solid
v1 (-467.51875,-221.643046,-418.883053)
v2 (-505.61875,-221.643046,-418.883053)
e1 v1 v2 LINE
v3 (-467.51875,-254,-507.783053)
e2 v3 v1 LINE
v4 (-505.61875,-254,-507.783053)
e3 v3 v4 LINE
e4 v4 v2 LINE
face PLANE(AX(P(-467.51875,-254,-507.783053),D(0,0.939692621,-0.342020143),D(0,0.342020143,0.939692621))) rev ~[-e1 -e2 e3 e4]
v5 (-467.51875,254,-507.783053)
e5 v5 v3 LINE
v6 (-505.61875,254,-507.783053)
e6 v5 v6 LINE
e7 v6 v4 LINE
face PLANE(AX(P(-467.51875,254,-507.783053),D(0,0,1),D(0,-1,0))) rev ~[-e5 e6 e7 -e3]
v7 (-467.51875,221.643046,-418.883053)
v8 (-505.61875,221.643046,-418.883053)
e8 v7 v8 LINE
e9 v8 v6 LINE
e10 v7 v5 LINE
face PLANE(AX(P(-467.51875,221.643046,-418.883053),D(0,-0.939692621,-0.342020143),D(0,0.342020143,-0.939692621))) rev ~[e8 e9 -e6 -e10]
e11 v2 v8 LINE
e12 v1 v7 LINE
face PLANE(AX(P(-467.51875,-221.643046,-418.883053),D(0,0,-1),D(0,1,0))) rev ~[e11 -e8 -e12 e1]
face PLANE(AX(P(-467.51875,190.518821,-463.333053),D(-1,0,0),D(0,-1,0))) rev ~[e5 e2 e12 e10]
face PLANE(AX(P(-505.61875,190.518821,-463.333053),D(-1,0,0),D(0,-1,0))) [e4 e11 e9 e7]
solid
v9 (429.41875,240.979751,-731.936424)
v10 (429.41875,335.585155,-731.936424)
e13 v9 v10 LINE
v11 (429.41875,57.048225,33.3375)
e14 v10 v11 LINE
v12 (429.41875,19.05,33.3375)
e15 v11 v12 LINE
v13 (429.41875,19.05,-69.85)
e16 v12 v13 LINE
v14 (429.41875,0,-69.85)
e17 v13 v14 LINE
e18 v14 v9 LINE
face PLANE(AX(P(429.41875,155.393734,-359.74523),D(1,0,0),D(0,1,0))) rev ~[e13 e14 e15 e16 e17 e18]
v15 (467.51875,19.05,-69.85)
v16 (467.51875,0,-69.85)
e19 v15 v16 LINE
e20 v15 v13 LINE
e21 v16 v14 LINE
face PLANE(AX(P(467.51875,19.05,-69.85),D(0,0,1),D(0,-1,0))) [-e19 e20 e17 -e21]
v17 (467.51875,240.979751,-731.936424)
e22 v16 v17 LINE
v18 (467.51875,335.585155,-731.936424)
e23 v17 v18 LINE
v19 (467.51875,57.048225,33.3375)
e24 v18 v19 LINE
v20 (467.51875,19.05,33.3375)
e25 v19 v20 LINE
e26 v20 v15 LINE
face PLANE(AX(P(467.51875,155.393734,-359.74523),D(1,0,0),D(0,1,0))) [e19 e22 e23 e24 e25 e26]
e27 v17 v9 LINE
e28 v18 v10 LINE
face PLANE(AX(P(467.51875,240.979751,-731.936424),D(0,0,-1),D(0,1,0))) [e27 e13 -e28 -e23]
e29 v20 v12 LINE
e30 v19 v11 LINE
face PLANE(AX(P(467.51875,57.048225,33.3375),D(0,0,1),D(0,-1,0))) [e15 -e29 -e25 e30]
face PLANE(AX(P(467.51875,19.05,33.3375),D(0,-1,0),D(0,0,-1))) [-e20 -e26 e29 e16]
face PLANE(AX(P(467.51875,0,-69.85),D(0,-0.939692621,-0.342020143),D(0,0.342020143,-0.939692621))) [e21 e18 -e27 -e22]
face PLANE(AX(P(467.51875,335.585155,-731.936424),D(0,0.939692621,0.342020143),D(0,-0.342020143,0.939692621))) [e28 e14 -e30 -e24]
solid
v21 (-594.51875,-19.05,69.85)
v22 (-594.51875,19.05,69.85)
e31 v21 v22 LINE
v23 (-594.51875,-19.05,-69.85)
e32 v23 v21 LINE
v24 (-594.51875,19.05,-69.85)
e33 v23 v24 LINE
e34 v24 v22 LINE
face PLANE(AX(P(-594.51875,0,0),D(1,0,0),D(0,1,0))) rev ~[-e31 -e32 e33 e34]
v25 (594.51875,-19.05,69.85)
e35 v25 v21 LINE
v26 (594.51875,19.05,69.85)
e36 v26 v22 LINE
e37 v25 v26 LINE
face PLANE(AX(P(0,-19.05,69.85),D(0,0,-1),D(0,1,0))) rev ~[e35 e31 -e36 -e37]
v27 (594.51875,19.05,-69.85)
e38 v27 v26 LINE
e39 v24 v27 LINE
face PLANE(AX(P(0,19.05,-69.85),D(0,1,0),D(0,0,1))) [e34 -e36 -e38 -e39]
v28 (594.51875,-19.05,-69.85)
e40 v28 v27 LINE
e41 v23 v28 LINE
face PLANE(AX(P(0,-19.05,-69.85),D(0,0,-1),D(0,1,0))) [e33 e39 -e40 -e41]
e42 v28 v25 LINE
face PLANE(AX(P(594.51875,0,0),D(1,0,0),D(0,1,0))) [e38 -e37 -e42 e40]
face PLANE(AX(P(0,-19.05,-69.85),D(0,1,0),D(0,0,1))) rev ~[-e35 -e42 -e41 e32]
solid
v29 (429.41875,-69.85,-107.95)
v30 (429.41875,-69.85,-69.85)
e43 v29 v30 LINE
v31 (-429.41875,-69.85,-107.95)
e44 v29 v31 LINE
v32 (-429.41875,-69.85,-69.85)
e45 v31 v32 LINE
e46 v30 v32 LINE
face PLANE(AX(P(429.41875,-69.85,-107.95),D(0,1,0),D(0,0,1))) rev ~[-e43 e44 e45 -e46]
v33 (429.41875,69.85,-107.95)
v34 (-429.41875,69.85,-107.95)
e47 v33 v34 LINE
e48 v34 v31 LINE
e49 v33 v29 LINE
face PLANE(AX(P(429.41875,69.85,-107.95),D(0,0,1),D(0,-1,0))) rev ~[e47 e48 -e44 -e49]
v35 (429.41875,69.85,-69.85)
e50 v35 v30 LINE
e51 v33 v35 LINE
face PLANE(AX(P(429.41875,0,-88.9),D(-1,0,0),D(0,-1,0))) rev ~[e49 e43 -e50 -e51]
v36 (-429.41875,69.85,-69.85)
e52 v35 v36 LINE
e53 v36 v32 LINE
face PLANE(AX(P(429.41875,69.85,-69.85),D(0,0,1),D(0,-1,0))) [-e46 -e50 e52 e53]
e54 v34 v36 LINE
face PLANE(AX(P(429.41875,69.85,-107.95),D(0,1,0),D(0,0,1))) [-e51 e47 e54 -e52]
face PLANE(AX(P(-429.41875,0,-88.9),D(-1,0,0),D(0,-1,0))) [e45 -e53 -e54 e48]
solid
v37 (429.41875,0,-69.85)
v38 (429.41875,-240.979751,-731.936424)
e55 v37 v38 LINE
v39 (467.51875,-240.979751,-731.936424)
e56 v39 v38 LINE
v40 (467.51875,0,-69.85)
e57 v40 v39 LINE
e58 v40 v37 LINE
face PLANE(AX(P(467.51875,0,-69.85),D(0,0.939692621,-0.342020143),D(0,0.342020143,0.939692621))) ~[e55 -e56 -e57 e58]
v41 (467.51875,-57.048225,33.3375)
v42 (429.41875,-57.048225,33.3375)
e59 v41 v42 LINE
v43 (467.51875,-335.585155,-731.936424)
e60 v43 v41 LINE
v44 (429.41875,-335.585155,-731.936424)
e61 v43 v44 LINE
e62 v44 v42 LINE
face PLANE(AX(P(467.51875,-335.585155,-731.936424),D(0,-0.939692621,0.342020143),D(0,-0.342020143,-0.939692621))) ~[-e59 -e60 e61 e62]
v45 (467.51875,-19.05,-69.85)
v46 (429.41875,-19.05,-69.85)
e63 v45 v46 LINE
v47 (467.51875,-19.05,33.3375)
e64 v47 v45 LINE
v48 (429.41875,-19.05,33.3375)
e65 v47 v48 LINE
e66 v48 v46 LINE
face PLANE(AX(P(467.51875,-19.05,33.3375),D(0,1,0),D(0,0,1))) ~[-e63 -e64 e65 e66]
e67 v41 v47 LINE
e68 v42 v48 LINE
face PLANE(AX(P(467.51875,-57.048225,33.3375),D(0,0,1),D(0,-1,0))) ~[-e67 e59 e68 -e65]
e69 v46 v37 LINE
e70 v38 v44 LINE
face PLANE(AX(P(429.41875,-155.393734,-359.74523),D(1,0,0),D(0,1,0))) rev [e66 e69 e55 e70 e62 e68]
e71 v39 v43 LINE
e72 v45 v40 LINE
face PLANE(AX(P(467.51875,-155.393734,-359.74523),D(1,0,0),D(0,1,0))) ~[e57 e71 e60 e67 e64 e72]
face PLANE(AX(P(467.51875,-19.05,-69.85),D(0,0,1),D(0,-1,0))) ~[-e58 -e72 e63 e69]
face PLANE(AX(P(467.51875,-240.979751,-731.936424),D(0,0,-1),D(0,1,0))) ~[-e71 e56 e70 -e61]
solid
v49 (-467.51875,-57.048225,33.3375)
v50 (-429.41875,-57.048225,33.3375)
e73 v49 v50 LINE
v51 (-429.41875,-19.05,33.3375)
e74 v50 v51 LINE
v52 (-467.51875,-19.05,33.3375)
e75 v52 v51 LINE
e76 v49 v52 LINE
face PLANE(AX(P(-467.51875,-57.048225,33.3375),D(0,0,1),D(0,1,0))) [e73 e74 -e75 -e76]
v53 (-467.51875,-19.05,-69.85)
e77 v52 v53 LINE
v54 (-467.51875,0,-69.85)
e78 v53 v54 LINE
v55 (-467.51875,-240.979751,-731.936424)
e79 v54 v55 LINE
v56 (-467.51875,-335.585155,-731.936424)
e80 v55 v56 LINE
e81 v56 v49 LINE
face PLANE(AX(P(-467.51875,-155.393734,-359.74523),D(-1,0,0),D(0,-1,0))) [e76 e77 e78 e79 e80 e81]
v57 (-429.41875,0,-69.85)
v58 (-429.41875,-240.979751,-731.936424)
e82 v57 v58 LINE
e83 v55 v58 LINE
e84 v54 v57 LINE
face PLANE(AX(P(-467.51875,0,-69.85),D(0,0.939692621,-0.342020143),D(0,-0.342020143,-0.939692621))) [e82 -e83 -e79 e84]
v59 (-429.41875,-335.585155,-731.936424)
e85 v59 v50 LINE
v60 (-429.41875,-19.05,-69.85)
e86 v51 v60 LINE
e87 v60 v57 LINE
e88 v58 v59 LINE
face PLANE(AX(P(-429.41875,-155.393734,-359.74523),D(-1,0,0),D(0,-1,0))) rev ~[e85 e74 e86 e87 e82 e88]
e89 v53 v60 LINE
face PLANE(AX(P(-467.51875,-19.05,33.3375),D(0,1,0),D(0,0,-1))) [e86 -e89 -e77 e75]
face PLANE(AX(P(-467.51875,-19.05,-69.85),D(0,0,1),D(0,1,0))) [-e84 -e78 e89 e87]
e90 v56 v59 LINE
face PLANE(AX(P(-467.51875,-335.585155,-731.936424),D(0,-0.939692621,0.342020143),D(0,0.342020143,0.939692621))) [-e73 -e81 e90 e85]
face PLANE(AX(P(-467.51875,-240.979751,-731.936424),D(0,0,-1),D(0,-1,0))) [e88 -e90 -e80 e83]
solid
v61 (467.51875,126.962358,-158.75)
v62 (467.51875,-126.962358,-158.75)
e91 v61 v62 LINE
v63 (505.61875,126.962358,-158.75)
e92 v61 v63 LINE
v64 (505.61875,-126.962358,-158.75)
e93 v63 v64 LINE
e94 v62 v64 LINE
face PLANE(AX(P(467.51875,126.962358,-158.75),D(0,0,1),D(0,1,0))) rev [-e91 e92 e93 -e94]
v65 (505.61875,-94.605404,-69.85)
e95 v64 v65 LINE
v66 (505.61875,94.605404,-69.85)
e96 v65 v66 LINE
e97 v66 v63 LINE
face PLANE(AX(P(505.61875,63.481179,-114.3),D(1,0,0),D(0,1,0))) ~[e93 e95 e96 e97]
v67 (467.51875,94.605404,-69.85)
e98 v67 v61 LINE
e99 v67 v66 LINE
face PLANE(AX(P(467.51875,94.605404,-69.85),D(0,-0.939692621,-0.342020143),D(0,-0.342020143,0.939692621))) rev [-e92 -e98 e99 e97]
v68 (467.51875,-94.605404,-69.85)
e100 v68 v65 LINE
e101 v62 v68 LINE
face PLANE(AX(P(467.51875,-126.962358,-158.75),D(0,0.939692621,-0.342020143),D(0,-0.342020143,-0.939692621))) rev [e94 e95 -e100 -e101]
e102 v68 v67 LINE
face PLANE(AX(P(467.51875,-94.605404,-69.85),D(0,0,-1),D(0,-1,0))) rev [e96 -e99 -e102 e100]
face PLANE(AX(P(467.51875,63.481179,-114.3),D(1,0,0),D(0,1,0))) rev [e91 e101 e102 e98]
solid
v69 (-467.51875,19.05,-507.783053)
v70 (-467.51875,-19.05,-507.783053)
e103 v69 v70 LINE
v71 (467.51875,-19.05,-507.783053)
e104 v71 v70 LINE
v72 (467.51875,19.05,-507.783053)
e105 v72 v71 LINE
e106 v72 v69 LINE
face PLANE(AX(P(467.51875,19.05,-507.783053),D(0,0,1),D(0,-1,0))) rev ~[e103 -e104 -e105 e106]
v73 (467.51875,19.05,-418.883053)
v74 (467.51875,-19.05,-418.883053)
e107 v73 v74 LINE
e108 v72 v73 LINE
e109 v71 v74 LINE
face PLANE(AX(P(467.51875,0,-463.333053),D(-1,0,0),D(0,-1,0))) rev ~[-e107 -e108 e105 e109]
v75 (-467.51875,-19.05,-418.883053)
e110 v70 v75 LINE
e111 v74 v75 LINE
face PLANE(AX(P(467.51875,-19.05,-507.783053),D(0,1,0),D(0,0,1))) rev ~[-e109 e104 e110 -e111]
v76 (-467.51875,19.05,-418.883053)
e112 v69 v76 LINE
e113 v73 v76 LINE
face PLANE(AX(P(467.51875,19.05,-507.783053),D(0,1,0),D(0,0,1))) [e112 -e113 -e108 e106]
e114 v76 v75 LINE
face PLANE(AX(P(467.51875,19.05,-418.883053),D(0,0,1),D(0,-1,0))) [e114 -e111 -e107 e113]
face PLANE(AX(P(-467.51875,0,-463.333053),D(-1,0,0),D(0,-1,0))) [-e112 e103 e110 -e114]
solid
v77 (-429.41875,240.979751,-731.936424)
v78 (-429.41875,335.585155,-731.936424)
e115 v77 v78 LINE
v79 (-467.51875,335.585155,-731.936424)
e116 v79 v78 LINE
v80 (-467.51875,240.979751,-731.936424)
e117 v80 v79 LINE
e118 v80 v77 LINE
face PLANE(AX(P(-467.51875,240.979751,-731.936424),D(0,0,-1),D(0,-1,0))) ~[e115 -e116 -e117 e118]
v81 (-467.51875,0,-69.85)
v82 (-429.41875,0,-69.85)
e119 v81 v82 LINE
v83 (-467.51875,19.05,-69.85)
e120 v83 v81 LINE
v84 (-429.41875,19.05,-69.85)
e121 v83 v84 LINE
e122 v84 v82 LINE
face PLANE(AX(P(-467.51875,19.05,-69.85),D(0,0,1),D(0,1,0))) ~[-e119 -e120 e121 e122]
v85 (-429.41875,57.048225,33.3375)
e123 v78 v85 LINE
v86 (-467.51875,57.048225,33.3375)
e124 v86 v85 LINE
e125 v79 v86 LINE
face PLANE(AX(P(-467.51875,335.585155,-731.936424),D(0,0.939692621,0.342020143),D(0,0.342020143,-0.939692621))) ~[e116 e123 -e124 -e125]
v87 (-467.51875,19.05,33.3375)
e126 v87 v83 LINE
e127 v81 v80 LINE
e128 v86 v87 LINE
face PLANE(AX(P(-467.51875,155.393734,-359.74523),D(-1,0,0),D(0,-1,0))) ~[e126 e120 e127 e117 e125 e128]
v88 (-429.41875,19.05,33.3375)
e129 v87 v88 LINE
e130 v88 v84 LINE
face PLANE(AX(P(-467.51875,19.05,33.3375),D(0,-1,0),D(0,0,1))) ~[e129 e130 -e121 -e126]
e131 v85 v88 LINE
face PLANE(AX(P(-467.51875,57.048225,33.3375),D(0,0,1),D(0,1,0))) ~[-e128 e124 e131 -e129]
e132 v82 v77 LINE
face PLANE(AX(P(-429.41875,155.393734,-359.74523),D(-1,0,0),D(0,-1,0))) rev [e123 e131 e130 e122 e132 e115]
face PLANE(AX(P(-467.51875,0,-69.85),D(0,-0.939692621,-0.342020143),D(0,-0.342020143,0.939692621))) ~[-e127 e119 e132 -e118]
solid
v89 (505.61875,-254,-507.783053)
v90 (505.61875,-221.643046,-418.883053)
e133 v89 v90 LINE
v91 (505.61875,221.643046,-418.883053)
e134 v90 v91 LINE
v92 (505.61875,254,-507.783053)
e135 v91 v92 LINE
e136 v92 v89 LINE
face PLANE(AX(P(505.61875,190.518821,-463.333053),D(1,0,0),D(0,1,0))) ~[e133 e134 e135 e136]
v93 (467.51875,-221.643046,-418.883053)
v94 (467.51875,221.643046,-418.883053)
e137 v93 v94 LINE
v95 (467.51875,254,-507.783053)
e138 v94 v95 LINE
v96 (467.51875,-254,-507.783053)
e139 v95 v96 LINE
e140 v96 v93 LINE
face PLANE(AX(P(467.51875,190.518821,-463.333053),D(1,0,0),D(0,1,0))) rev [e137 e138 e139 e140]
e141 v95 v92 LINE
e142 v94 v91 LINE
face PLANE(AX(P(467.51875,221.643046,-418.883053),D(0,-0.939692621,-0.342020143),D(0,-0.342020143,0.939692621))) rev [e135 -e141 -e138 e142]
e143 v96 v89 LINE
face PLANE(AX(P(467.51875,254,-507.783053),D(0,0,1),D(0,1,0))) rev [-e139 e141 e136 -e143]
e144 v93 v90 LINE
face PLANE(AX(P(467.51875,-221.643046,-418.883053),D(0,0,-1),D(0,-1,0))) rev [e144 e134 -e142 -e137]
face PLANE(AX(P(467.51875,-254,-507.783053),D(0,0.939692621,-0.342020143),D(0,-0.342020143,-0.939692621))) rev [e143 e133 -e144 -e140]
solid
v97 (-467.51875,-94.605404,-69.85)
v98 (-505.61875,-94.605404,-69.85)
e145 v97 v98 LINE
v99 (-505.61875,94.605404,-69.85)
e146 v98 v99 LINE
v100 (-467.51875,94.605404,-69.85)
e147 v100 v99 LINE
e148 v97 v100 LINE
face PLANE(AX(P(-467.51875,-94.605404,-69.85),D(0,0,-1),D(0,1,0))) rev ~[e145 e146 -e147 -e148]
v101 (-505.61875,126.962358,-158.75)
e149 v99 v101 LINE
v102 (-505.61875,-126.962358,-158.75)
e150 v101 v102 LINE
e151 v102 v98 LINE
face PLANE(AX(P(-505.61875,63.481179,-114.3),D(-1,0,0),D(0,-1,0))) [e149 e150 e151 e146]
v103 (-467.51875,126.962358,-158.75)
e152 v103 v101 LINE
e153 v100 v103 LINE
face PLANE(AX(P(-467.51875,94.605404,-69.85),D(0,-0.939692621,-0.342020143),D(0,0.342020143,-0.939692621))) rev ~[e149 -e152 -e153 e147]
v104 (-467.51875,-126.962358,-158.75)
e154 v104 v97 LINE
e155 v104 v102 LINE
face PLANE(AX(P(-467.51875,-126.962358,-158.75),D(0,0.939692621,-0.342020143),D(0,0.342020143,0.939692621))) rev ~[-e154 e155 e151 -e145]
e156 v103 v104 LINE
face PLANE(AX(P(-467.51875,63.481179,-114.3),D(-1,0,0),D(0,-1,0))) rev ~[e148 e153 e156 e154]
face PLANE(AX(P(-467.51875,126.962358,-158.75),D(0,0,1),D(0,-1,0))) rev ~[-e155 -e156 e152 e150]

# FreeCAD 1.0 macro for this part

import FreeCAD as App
import Part
import Sketcher
from FreeCAD import Vector
Q = App.Units.Quantity


def add_polygon(sketch, points):
    """Adds a closed chain of lines whose ends are joined by coincident constraints."""
    first, n = sketch.GeometryCount, len(points)
    for a, b in zip(points, points[1:] + points[:1]):
        sketch.addGeometry(Part.LineSegment(App.Vector(*a, 0), App.Vector(*b, 0)), False)
    for i in range(n):
        sketch.addConstraint(Sketcher.Constraint("Coincident", first + i, 2, first + (i + 1) % n, 1))

doc = App.newDocument("Part")
body = doc.addObject("PartDesign::Body", "Body")

# Sketch on YZ plane
sketch1 = body.newObject("Sketcher::SketchObject", "Sketch")
sketch1.AttachmentSupport = (doc.getObject("YZ_Plane"), [""])
sketch1.MapMode = "FlatFace"
add_polygon(sketch1, [(-19, 70), (-19, -70), (19, -70), (19, 70)])  # lines 0-3
sketch1.addConstraint([
    Sketcher.Constraint("Vertical", 0),
    Sketcher.Constraint("Horizontal", 1),
    Sketcher.Constraint("Vertical", 2),
    Sketcher.Constraint("Horizontal", 3),
    Sketcher.Constraint("Symmetric", 0, 2, 2, 2, -1, 1),
    Sketcher.Constraint("DistanceX", 1, 1, 1, 2, Q("1.5 in")),
    Sketcher.Constraint("DistanceY", 0, 2, 0, 1, Q("5.5 in")),
])
pad1 = body.newObject("PartDesign::Pad", "Pad")
pad1.Profile = sketch1
pad1.Length = Q("46.8125 in")
pad1.Midplane = True
body2 = doc.addObject("PartDesign::Body", "Body001")

# Sketch on YZ plane
sketch2 = body2.newObject("Sketcher::SketchObject", "Sketch001")
sketch2.AttachmentSupport = (doc.getObject("YZ_Plane001"), [""])
sketch2.MapMode = "FlatFace"
sketch2.AttachmentOffset = App.Placement(Vector(0, 0, -18.40625 * 25.4), App.Rotation())
add_polygon(sketch2, [(-19, -70), (0, -70), (-241, -732), (-336, -732), (-57, 33), (-19, 33)])  # lines 0-5
sketch2.addConstraint([
    Sketcher.Constraint("Horizontal", 0),
    Sketcher.Constraint("Horizontal", 2),
    Sketcher.Constraint("Horizontal", 4),
    Sketcher.Constraint("Vertical", 5),
    Sketcher.Constraint("PointOnObject", 0, 2, -2),
    Sketcher.Constraint("Parallel", 1, 3),
    Sketcher.Constraint("Angle", 1, Q("-110 deg")),
    Sketcher.Constraint("DistanceX", 0, 1, 0, 2, Q("0.75 in")),
    Sketcher.Constraint("DistanceY", 5, 2, 5, 1, Q("4.0625 in")),
    Sketcher.Constraint("DistanceY", 0, 2, -1, 1, Q("2.75 in")),
    Sketcher.Constraint("Distance", 3, Q("32.0625 in")),
    Sketcher.Constraint("DistanceX", 2, 2, 2, 1, 94.605404),
])
pad2 = body2.newObject("PartDesign::Pad", "Pad001")
pad2.Profile = sketch2
pad2.Length = Q("1.5 in")
body3 = doc.addObject("PartDesign::Body", "Body002")
doc.recompute()

mirroring = doc.addObject("Part::Mirroring", "Mirroring")
mirroring.Source = body2
mirroring.Base = Vector(0, 0, 0)
mirroring.Normal = Vector(1, 0, 0)
body3.BaseFeature = mirroring
doc.recompute()
body4 = doc.addObject("PartDesign::Body", "Body003")
doc.recompute()

mirroring2 = doc.addObject("Part::Mirroring", "Mirroring001")
mirroring2.Source = body2
mirroring2.Base = Vector(0, 0, 0)
mirroring2.Normal = Vector(0, -1, 0)
body4.BaseFeature = mirroring2
doc.recompute()
body5 = doc.addObject("PartDesign::Body", "Body004")
doc.recompute()

mirroring3 = doc.addObject("Part::Mirroring", "Mirroring002")
mirroring3.Source = body3
mirroring3.Base = Vector(0, 0, 0)
mirroring3.Normal = Vector(0, -1, 0)
body5.BaseFeature = mirroring3
doc.recompute()
body6 = doc.addObject("PartDesign::Body", "Body005")

# Sketch on YZ plane
sketch3 = body6.newObject("Sketcher::SketchObject", "Sketch002")
sketch3.AttachmentSupport = (doc.getObject("YZ_Plane005"), [""])
sketch3.MapMode = "FlatFace"
sketch3.AttachmentOffset = App.Placement(Vector(0, 0, -18.40625 * 25.4), App.Rotation())
add_polygon(sketch3, [(95, -70), (127, -159), (-127, -159), (-95, -70)])  # lines 0-3
sketch3.addConstraint([
    Sketcher.Constraint("Horizontal", 1),
    Sketcher.Constraint("Horizontal", 3),
    Sketcher.Constraint("Equal", 0, 2),
    Sketcher.Constraint("Angle", 0, Q("-70 deg")),
    Sketcher.Constraint("DistanceY", 1, 2, 2, 2, Q("3.5 in")),
    Sketcher.Constraint("DistanceY", 0, 2, -1, 1, Q("6.25 in")),
    Sketcher.Constraint("DistanceX", 1, 2, 1, 1, 253.924716),
    Sketcher.Constraint("DistanceX", -1, 1, 0, 2, 126.962358),
])
pad3 = body6.newObject("PartDesign::Pad", "Pad002")
pad3.Profile = sketch3
pad3.Length = Q("1.5 in")
pad3.Reversed = True
body7 = doc.addObject("PartDesign::Body", "Body006")

# Sketch on YZ plane
sketch4 = body7.newObject("Sketcher::SketchObject", "Sketch003")
sketch4.AttachmentSupport = (doc.getObject("YZ_Plane006"), [""])
sketch4.MapMode = "FlatFace"
sketch4.AttachmentOffset = App.Placement(Vector(0, 0, -18.40625 * 25.4), App.Rotation())
add_polygon(sketch4, [(222, -419), (254, -508), (-254, -508), (-222, -419)])  # lines 0-3
sketch4.addConstraint([
    Sketcher.Constraint("Horizontal", 1),
    Sketcher.Constraint("Horizontal", 3),
    Sketcher.Constraint("Equal", 0, 2),
    Sketcher.Constraint("DistanceX", 1, 2, 1, 1, Q("20 in")),
    Sketcher.Constraint("DistanceX", -1, 1, 0, 2, Q("10 in")),
    Sketcher.Constraint("Angle", 0, Q("-70 deg")),
    Sketcher.Constraint("DistanceY", 1, 2, 2, 2, Q("3.5 in")),
    Sketcher.Constraint("DistanceY", 0, 2, -1, 1, 507.783053),
])
pad4 = body7.newObject("PartDesign::Pad", "Pad003")
pad4.Profile = sketch4
pad4.Length = Q("1.5 in")
pad4.Reversed = True
body8 = doc.addObject("PartDesign::Body", "Body007")
doc.recompute()

mirroring4 = doc.addObject("Part::Mirroring", "Mirroring003")
mirroring4.Source = body6
mirroring4.Base = Vector(0, 0, 0)
mirroring4.Normal = Vector(1, 0, 0)
body8.BaseFeature = mirroring4
doc.recompute()
body9 = doc.addObject("PartDesign::Body", "Body008")
doc.recompute()

mirroring5 = doc.addObject("Part::Mirroring", "Mirroring004")
mirroring5.Source = body7
mirroring5.Base = Vector(0, 0, 0)
mirroring5.Normal = Vector(1, 0, 0)
body9.BaseFeature = mirroring5
doc.recompute()
body10 = doc.addObject("PartDesign::Body", "Body009")

# Sketch on YZ plane
sketch5 = body10.newObject("Sketcher::SketchObject", "Sketch004")
sketch5.AttachmentSupport = (doc.getObject("YZ_Plane009"), [""])
sketch5.MapMode = "FlatFace"
sketch5.AttachmentOffset = App.Placement(Vector(0, 0, 16.90625 * 25.4), App.Rotation())
add_polygon(sketch5, [(70, -70), (70, -108), (-70, -108), (-70, -70)])  # lines 0-3
sketch5.addConstraint([
    Sketcher.Constraint("Vertical", 0),
    Sketcher.Constraint("Horizontal", 1),
    Sketcher.Constraint("Vertical", 2),
    Sketcher.Constraint("Horizontal", 3),
    Sketcher.Constraint("DistanceX", 1, 2, 1, 1, Q("5.5 in")),
    Sketcher.Constraint("DistanceY", 0, 2, 0, 1, Q("1.5 in")),
    Sketcher.Constraint("DistanceX", -1, 1, 0, 2, Q("2.75 in")),
    Sketcher.Constraint("DistanceY", 0, 2, -1, 1, Q("4.25 in")),
])
pad5 = body10.newObject("PartDesign::Pad", "Pad004")
pad5.Profile = sketch5
pad5.Length = Q("33.8125 in")
pad5.Reversed = True
body11 = doc.addObject("PartDesign::Body", "Body010")

# Sketch on YZ plane
sketch6 = body11.newObject("Sketcher::SketchObject", "Sketch005")
sketch6.AttachmentSupport = (doc.getObject("YZ_Plane010"), [""])
sketch6.MapMode = "FlatFace"
sketch6.AttachmentOffset = App.Placement(Vector(0, 0, 18.40625 * 25.4), App.Rotation())
add_polygon(sketch6, [(19, -419), (19, -508), (-19, -508), (-19, -419)])  # lines 0-3
sketch6.addConstraint([
    Sketcher.Constraint("Vertical", 0),
    Sketcher.Constraint("Horizontal", 1),
    Sketcher.Constraint("Vertical", 2),
    Sketcher.Constraint("Horizontal", 3),
    Sketcher.Constraint("DistanceX", 1, 2, 1, 1, Q("1.5 in")),
    Sketcher.Constraint("DistanceY", 0, 2, 0, 1, Q("3.5 in")),
    Sketcher.Constraint("DistanceX", -1, 1, 0, 2, Q("0.75 in")),
    Sketcher.Constraint("DistanceY", 0, 2, -1, 1, 507.783053),
])
pad6 = body11.newObject("PartDesign::Pad", "Pad005")
pad6.Profile = sketch6
pad6.Length = Q("36.8125 in")
pad6.Reversed = True
mirroring.Visibility = False
mirroring2.Visibility = False
mirroring3.Visibility = False
mirroring4.Visibility = False
mirroring5.Visibility = False

doc.recompute()
